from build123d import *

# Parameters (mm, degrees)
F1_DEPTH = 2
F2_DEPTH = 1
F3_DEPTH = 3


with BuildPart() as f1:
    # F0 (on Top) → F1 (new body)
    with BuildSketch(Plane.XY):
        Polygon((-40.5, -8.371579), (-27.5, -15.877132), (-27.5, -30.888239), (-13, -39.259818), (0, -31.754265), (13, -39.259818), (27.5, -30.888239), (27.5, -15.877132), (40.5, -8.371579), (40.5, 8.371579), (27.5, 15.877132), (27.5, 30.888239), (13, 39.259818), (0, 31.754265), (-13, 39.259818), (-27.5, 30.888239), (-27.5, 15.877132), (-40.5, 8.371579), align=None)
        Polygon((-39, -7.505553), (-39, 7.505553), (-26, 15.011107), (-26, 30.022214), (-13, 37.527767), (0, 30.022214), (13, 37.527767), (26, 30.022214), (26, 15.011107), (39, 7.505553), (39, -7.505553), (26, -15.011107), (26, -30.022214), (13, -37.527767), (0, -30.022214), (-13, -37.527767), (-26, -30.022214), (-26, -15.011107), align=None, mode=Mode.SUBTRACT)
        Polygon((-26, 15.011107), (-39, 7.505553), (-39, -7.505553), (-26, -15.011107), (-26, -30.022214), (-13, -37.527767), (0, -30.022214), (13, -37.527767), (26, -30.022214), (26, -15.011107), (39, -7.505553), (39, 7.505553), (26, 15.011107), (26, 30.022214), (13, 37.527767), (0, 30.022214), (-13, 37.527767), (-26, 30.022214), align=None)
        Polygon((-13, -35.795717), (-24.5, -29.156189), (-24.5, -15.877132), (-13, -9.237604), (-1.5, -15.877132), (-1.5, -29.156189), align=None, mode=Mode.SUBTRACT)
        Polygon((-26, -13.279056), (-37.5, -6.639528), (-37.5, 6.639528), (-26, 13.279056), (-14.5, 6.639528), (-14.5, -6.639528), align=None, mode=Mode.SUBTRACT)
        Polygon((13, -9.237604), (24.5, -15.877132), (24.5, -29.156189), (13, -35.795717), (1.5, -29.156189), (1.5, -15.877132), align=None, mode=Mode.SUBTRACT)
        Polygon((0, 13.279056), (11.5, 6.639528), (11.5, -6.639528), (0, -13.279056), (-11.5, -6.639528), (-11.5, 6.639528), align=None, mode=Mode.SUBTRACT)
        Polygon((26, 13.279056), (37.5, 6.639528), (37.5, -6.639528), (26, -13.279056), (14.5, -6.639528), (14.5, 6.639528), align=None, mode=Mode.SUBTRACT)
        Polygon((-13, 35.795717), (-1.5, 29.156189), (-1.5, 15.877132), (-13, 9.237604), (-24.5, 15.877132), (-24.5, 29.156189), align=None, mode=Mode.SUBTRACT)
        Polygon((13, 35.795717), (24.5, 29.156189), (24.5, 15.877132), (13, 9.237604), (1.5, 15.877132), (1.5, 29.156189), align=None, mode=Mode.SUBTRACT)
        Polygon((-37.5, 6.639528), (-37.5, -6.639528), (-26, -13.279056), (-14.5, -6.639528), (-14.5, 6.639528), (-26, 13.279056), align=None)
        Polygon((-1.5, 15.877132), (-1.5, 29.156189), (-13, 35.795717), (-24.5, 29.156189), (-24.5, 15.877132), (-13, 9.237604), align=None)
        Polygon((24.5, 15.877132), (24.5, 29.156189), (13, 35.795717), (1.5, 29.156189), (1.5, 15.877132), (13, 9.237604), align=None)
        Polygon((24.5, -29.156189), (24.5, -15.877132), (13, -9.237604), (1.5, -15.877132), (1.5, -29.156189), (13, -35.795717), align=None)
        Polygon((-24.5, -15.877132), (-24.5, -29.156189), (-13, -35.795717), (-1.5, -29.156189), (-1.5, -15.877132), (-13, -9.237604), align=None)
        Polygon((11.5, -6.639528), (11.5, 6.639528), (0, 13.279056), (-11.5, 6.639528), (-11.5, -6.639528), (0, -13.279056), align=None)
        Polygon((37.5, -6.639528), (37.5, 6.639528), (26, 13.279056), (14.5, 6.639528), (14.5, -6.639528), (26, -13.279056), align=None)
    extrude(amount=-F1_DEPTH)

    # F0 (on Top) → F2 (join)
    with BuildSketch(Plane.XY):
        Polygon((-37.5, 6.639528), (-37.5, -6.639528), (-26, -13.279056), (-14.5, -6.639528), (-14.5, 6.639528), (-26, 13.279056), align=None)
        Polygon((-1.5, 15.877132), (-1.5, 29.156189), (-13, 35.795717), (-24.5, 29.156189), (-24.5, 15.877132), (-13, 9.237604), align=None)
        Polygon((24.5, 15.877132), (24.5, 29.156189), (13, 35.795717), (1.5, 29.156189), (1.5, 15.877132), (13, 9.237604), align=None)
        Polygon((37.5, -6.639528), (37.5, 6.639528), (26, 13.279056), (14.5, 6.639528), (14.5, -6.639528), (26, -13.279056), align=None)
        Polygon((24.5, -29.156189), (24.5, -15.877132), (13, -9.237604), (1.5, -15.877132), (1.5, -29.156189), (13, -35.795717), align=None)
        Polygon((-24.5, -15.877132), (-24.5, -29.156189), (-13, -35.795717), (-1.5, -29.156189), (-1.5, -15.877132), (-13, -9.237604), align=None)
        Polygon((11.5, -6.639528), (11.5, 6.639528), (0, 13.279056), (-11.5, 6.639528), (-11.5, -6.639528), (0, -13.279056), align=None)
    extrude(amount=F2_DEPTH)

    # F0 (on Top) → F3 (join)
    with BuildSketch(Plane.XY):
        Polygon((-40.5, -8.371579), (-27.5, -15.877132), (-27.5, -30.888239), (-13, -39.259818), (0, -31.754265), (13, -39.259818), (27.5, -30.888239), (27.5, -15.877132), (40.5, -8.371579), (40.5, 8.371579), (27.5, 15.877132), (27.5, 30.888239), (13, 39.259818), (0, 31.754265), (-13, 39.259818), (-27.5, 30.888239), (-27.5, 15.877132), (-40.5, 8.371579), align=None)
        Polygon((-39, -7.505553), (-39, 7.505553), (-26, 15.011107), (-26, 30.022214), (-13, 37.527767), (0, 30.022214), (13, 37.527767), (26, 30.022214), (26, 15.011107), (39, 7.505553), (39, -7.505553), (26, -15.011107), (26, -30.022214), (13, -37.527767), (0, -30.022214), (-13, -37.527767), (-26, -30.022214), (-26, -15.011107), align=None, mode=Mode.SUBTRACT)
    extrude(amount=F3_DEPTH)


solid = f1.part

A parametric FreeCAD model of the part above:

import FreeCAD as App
import Part
import Sketcher
Q = App.Units.Quantity


def add_polygon(sketch, points):
    """Adds a closed chain of lines whose ends are joined by coincident constraints."""
    first, n = sketch.GeometryCount, len(points)
    for a, b in zip(points, points[1:] + points[:1]):
        sketch.addGeometry(Part.LineSegment(App.Vector(*a, 0), App.Vector(*b, 0)), False)
    for i in range(n):
        sketch.addConstraint(Sketcher.Constraint("Coincident", first + i, 2, first + (i + 1) % n, 1))

doc = App.newDocument("Part")
body = doc.addObject("PartDesign::Body", "Body")

# Sketch on XY plane
sketch1 = doc.addObject("Sketcher::SketchObject", "Sketch")
body.addObject(sketch1)
sketch1.AttachmentSupport = (doc.XY_Plane, [""])
sketch1.MapMode = "FlatFace"
add_polygon(sketch1, [(-40, -8), (-28, -16), (-28, -31), (-13, -39), (0, -32), (13, -39), (28, -31), (28, -16), (40, -8), (40, 8), (28, 16), (28, 31), (13, 39), (0, 32), (-13, 39), (-28, 31), (-28, 16), (-40, 8)])  # lines 0-17
sketch1.addConstraint([
    Sketcher.Constraint("Vertical", 1),
    Sketcher.Constraint("Vertical", 6),
    Sketcher.Constraint("Vertical", 8),
    Sketcher.Constraint("Vertical", 10),
    Sketcher.Constraint("Vertical", 15),
    Sketcher.Constraint("Vertical", 17),
    Sketcher.Constraint("Symmetric", 0, 2, 9, 2, -1, 1),
    Sketcher.Constraint("Symmetric", 2, 2, 11, 2, -1, 1),
    Sketcher.Constraint("Symmetric", 3, 2, 12, 2, -1, 1),
    Sketcher.Constraint("Symmetric", 4, 2, 13, 2, -1, 1),
    Sketcher.Constraint("Symmetric", 5, 2, 14, 2, -1, 1),
    Sketcher.Constraint("Symmetric", 7, 2, 16, 2, -1, 1),
    Sketcher.Constraint("Symmetric", 2, 2, 4, 2, -2),
    Sketcher.Constraint("Symmetric", 1, 2, 5, 2, -2),
    Sketcher.Constraint("PointOnObject", 3, 2, -2),
    Sketcher.Constraint("Parallel", 0, 2),
    Sketcher.Constraint("Parallel", 2, 4),
    Sketcher.Constraint("Parallel", 5, 7),
    Sketcher.Constraint("Parallel", 4, 9),
    Sketcher.Constraint("Parallel", 9, 11),
    Sketcher.Constraint("Parallel", 14, 16),
    Sketcher.Constraint("Horizontal", 0, 2, 6, 2),
    Sketcher.Constraint("Equal", 0, 3),
    Sketcher.Constraint("Angle", 0, Q("-29.999998 deg")),
    Sketcher.Constraint("DistanceX", 2, 2, -1, 1, Q("13 mm")),
    Sketcher.Constraint("DistanceX", 1, 2, 5, 2, Q("55 mm")),
    Sketcher.Constraint("DistanceY", 8, 1, 8, 2, Q("16.743158 mm")),
    Sketcher.Constraint("DistanceY", 1, 2, 1, 1, Q("15.011107 mm")),
])
pad1 = doc.addObject("PartDesign::Pad", "Pad")
body.addObject(pad1)
pad1.Profile = sketch1
pad1.Length = 2
pad1.Reversed = True

# Sketch on XY plane
sketch2 = doc.addObject("Sketcher::SketchObject", "Sketch001")
body.addObject(sketch2)
sketch2.AttachmentSupport = (doc.XY_Plane, [""])
sketch2.MapMode = "FlatFace"
add_polygon(sketch2, [(-38, 7), (-38, -7), (-26, -13), (-14, -7), (-14, 7), (-26, 13)])  # lines 0-5
add_polygon(sketch2, [(-2, 16), (-2, 29), (-13, 36), (-24, 29), (-24, 16), (-13, 9)])  # lines 6-11
add_polygon(sketch2, [(24, 16), (24, 29), (13, 36), (2, 29), (2, 16), (13, 9)])  # lines 12-17
add_polygon(sketch2, [(38, -7), (38, 7), (26, 13), (14, 7), (14, -7), (26, -13)])  # lines 18-23
add_polygon(sketch2, [(24, -29), (24, -16), (13, -9), (2, -16), (2, -29), (13, -36)])  # lines 24-29
add_polygon(sketch2, [(-24, -16), (-24, -29), (-13, -36), (-2, -29), (-2, -16), (-13, -9)])  # lines 30-35
add_polygon(sketch2, [(12, -7), (12, 7), (0, 13), (-12, 7), (-12, -7), (0, -13)])  # lines 36-41
sketch2.addConstraint([
    Sketcher.Constraint("Vertical", 0),
    Sketcher.Constraint("Vertical", 3),
    Sketcher.Constraint("Vertical", 6),
    Sketcher.Constraint("Vertical", 9),
    Sketcher.Constraint("Vertical", 12),
    Sketcher.Constraint("Vertical", 15),
    Sketcher.Constraint("Vertical", 18),
    Sketcher.Constraint("Vertical", 21),
    Sketcher.Constraint("Vertical", 24),
    Sketcher.Constraint("Vertical", 27),
    Sketcher.Constraint("Vertical", 30),
    Sketcher.Constraint("Vertical", 33),
    Sketcher.Constraint("Vertical", 36),
    Sketcher.Constraint("Vertical", 39),
    Sketcher.Constraint("Symmetric", 0, 2, 18, 2, -1, 1),
    Sketcher.Constraint("Symmetric", 1, 2, 19, 2, -1, 1),
    Sketcher.Constraint("Symmetric", 2, 2, 20, 2, -1, 1),
    Sketcher.Constraint("Symmetric", 4, 2, 22, 2, -1, 1),
    Sketcher.Constraint("Symmetric", 9, 2, 24, 2, -1, 1),
    Sketcher.Constraint("Symmetric", 10, 2, 25, 2, -1, 1),
    Sketcher.Constraint("Symmetric", 11, 2, 26, 2, -1, 1),
    Sketcher.Constraint("Symmetric", 7, 2, 28, 2, -1, 1),
    Sketcher.Constraint("Symmetric", 12, 2, 30, 2, -1, 1),
    Sketcher.Constraint("Symmetric", 13, 2, 31, 2, -1, 1),
    Sketcher.Constraint("Symmetric", 14, 2, 32, 2, -1, 1),
    Sketcher.Constraint("Symmetric", 16, 2, 34, 2, -1, 1),
    Sketcher.Constraint("Symmetric", 36, 2, 39, 2, -1, 1),
    Sketcher.Constraint("Symmetric", 37, 2, 40, 2, -1, 1),
    Sketcher.Constraint("Symmetric", 8, 2, 12, 2, -2),
    Sketcher.Constraint("Symmetric", 7, 2, 13, 2, -2),
    Sketcher.Constraint("Symmetric", 6, 2, 14, 2, -2),
    Sketcher.Constraint("Symmetric", 10, 2, 16, 2, -2),
    Sketcher.Constraint("Symmetric", 4, 2, 19, 2, -2),
    Sketcher.Constraint("PointOnObject", 37, 2, -2),
    Sketcher.Constraint("Parallel", 1, 4),
    Sketcher.Constraint("Parallel", 2, 5),
    Sketcher.Constraint("Parallel", 4, 7),
    Sketcher.Constraint("Parallel", 5, 8),
    Sketcher.Constraint("Parallel", 7, 10),
    Sketcher.Constraint("Parallel", 8, 11),
    Sketcher.Constraint("Parallel", 10, 13),
    Sketcher.Constraint("Parallel", 13, 16),
    Sketcher.Constraint("Parallel", 14, 17),
    Sketcher.Constraint("Parallel", 19, 22),
    Sketcher.Constraint("Parallel", 20, 23),
    Sketcher.Constraint("Parallel", 25, 28),
    Sketcher.Constraint("Parallel", 26, 29),
    Sketcher.Constraint("Parallel", 31, 34),
    Sketcher.Constraint("Parallel", 32, 35),
    Sketcher.Constraint("Parallel", 34, 37),
    Sketcher.Constraint("Parallel", 35, 38),
    Sketcher.Constraint("Parallel", 38, 41),
    Sketcher.Constraint("Horizontal", 0, 2, 2, 2),
    Sketcher.Constraint("Horizontal", 6, 2, 8, 2),
    Sketcher.Constraint("Horizontal", 9, 2, 11, 2),
    Sketcher.Constraint("Horizontal", 20, 2, 36, 2),
    Sketcher.Constraint("Horizontal", 19, 2, 37, 2),
    Sketcher.Constraint("Equal", 3, 6),
    Sketcher.Constraint("Equal", 5, 7),
    Sketcher.Constraint("Angle", 1, Q("-30 deg")),
    Sketcher.Constraint("DistanceX", 1, 2, -1, 1, Q("26 mm")),
    Sketcher.Constraint("DistanceX", 7, 2, -1, 1, Q("13 mm")),
    Sketcher.Constraint("DistanceX", 0, 2, 2, 2, Q("23 mm")),
    Sketcher.Constraint("DistanceY", 0, 2, 0, 1, Q("13.279056 mm")),
    Sketcher.Constraint("DistanceY", -1, 1, 6, 2, Q("29.156189 mm")),
])
pad2 = doc.addObject("PartDesign::Pad", "Pad001")
body.addObject(pad2)
pad2.Profile = sketch2
pad2.Length = 1

# Sketch on XY plane
sketch3 = doc.addObject("Sketcher::SketchObject", "Sketch002")
body.addObject(sketch3)
sketch3.AttachmentSupport = (doc.XY_Plane, [""])
sketch3.MapMode = "FlatFace"
add_polygon(sketch3, [(-40, -8), (-28, -16), (-28, -31), (-13, -39), (0, -32), (13, -39), (28, -31), (28, -16), (40, -8), (40, 8), (28, 16), (28, 31), (13, 39), (0, 32), (-13, 39), (-28, 31), (-28, 16), (-40, 8)])  # lines 0-17
add_polygon(sketch3, [(-26, -15), (-39, -8), (-39, 8), (-26, 15), (-26, 30), (-13, 38), (0, 30), (13, 38), (26, 30), (26, 15), (39, 8), (39, -8), (26, -15), (26, -30), (13, -38), (0, -30), (-13, -38), (-26, -30)])  # lines 18-35
sketch3.addConstraint([
    Sketcher.Constraint("Vertical", 1),
    Sketcher.Constraint("Vertical", 6),
    Sketcher.Constraint("Vertical", 8),
    Sketcher.Constraint("Vertical", 10),
    Sketcher.Constraint("Vertical", 15),
    Sketcher.Constraint("Vertical", 17),
    Sketcher.Constraint("Vertical", 19),
    Sketcher.Constraint("Vertical", 21),
    Sketcher.Constraint("Vertical", 26),
    Sketcher.Constraint("Vertical", 28),
    Sketcher.Constraint("Vertical", 30),
    Sketcher.Constraint("Vertical", 35),
    Sketcher.Constraint("Symmetric", 0, 2, 9, 2, -1, 1),
    Sketcher.Constraint("Symmetric", 2, 2, 11, 2, -1, 1),
    Sketcher.Constraint("Symmetric", 3, 2, 12, 2, -1, 1),
    Sketcher.Constraint("Symmetric", 4, 2, 13, 2, -1, 1),
    Sketcher.Constraint("Symmetric", 5, 2, 14, 2, -1, 1),
    Sketcher.Constraint("Symmetric", 7, 2, 16, 2, -1, 1),
    Sketcher.Constraint("Symmetric", 18, 2, 27, 2, -1, 1),
    Sketcher.Constraint("Symmetric", 20, 2, 29, 2, -1, 1),
    Sketcher.Constraint("Symmetric", 22, 2, 31, 2, -1, 1),
    Sketcher.Constraint("Symmetric", 23, 2, 32, 2, -1, 1),
    Sketcher.Constraint("Symmetric", 24, 2, 33, 2, -1, 1),
    Sketcher.Constraint("Symmetric", 25, 2, 34, 2, -1, 1),
    Sketcher.Constraint("Symmetric", 2, 2, 4, 2, -2),
    Sketcher.Constraint("Symmetric", 1, 2, 5, 2, -2),
    Sketcher.Constraint("Symmetric", 22, 2, 24, 2, -2),
    Sketcher.Constraint("Symmetric", 21, 2, 25, 2, -2),
    Sketcher.Constraint("PointOnObject", 3, 2, -2),
    Sketcher.Constraint("PointOnObject", 23, 2, -2),
    Sketcher.Constraint("Parallel", 0, 2),
    Sketcher.Constraint("Parallel", 2, 4),
    Sketcher.Constraint("Parallel", 5, 7),
    Sketcher.Constraint("Parallel", 4, 9),
    Sketcher.Constraint("Parallel", 9, 11),
    Sketcher.Constraint("Parallel", 14, 16),
    Sketcher.Constraint("Parallel", 13, 18),
    Sketcher.Constraint("Parallel", 16, 20),
    Sketcher.Constraint("Parallel", 20, 22),
    Sketcher.Constraint("Parallel", 18, 23),
    Sketcher.Constraint("Parallel", 25, 27),
    Sketcher.Constraint("Parallel", 24, 29),
    Sketcher.Constraint("Parallel", 29, 31),
    Sketcher.Constraint("Horizontal", 0, 2, 6, 2),
    Sketcher.Constraint("Horizontal", 21, 2, 23, 2),
    Sketcher.Constraint("Horizontal", 20, 2, 26, 2),
    Sketcher.Constraint("Vertical", 13, 2, 22, 2),
    Sketcher.Constraint("Equal", 15, 19),
    Sketcher.Constraint("Equal", 19, 21),
    Sketcher.Constraint("Equal", 0, 3),
    Sketcher.Constraint("Equal", 16, 18),
    Sketcher.Constraint("Angle", 0, Q("-29.999998 deg")),
    Sketcher.Constraint("DistanceX", 2, 2, -1, 1, Q("13 mm")),
    Sketcher.Constraint("DistanceX", 1, 2, 5, 2, Q("55 mm")),
    Sketcher.Constraint("DistanceY", 8, 1, 8, 2, Q("16.743158 mm")),
    Sketcher.Constraint("DistanceY", 12, 2, 22, 2, Q("5.773502 mm")),
])
pad3 = doc.addObject("PartDesign::Pad", "Pad002")
body.addObject(pad3)
pad3.Profile = sketch3
pad3.Length = 3

doc.recompute()
